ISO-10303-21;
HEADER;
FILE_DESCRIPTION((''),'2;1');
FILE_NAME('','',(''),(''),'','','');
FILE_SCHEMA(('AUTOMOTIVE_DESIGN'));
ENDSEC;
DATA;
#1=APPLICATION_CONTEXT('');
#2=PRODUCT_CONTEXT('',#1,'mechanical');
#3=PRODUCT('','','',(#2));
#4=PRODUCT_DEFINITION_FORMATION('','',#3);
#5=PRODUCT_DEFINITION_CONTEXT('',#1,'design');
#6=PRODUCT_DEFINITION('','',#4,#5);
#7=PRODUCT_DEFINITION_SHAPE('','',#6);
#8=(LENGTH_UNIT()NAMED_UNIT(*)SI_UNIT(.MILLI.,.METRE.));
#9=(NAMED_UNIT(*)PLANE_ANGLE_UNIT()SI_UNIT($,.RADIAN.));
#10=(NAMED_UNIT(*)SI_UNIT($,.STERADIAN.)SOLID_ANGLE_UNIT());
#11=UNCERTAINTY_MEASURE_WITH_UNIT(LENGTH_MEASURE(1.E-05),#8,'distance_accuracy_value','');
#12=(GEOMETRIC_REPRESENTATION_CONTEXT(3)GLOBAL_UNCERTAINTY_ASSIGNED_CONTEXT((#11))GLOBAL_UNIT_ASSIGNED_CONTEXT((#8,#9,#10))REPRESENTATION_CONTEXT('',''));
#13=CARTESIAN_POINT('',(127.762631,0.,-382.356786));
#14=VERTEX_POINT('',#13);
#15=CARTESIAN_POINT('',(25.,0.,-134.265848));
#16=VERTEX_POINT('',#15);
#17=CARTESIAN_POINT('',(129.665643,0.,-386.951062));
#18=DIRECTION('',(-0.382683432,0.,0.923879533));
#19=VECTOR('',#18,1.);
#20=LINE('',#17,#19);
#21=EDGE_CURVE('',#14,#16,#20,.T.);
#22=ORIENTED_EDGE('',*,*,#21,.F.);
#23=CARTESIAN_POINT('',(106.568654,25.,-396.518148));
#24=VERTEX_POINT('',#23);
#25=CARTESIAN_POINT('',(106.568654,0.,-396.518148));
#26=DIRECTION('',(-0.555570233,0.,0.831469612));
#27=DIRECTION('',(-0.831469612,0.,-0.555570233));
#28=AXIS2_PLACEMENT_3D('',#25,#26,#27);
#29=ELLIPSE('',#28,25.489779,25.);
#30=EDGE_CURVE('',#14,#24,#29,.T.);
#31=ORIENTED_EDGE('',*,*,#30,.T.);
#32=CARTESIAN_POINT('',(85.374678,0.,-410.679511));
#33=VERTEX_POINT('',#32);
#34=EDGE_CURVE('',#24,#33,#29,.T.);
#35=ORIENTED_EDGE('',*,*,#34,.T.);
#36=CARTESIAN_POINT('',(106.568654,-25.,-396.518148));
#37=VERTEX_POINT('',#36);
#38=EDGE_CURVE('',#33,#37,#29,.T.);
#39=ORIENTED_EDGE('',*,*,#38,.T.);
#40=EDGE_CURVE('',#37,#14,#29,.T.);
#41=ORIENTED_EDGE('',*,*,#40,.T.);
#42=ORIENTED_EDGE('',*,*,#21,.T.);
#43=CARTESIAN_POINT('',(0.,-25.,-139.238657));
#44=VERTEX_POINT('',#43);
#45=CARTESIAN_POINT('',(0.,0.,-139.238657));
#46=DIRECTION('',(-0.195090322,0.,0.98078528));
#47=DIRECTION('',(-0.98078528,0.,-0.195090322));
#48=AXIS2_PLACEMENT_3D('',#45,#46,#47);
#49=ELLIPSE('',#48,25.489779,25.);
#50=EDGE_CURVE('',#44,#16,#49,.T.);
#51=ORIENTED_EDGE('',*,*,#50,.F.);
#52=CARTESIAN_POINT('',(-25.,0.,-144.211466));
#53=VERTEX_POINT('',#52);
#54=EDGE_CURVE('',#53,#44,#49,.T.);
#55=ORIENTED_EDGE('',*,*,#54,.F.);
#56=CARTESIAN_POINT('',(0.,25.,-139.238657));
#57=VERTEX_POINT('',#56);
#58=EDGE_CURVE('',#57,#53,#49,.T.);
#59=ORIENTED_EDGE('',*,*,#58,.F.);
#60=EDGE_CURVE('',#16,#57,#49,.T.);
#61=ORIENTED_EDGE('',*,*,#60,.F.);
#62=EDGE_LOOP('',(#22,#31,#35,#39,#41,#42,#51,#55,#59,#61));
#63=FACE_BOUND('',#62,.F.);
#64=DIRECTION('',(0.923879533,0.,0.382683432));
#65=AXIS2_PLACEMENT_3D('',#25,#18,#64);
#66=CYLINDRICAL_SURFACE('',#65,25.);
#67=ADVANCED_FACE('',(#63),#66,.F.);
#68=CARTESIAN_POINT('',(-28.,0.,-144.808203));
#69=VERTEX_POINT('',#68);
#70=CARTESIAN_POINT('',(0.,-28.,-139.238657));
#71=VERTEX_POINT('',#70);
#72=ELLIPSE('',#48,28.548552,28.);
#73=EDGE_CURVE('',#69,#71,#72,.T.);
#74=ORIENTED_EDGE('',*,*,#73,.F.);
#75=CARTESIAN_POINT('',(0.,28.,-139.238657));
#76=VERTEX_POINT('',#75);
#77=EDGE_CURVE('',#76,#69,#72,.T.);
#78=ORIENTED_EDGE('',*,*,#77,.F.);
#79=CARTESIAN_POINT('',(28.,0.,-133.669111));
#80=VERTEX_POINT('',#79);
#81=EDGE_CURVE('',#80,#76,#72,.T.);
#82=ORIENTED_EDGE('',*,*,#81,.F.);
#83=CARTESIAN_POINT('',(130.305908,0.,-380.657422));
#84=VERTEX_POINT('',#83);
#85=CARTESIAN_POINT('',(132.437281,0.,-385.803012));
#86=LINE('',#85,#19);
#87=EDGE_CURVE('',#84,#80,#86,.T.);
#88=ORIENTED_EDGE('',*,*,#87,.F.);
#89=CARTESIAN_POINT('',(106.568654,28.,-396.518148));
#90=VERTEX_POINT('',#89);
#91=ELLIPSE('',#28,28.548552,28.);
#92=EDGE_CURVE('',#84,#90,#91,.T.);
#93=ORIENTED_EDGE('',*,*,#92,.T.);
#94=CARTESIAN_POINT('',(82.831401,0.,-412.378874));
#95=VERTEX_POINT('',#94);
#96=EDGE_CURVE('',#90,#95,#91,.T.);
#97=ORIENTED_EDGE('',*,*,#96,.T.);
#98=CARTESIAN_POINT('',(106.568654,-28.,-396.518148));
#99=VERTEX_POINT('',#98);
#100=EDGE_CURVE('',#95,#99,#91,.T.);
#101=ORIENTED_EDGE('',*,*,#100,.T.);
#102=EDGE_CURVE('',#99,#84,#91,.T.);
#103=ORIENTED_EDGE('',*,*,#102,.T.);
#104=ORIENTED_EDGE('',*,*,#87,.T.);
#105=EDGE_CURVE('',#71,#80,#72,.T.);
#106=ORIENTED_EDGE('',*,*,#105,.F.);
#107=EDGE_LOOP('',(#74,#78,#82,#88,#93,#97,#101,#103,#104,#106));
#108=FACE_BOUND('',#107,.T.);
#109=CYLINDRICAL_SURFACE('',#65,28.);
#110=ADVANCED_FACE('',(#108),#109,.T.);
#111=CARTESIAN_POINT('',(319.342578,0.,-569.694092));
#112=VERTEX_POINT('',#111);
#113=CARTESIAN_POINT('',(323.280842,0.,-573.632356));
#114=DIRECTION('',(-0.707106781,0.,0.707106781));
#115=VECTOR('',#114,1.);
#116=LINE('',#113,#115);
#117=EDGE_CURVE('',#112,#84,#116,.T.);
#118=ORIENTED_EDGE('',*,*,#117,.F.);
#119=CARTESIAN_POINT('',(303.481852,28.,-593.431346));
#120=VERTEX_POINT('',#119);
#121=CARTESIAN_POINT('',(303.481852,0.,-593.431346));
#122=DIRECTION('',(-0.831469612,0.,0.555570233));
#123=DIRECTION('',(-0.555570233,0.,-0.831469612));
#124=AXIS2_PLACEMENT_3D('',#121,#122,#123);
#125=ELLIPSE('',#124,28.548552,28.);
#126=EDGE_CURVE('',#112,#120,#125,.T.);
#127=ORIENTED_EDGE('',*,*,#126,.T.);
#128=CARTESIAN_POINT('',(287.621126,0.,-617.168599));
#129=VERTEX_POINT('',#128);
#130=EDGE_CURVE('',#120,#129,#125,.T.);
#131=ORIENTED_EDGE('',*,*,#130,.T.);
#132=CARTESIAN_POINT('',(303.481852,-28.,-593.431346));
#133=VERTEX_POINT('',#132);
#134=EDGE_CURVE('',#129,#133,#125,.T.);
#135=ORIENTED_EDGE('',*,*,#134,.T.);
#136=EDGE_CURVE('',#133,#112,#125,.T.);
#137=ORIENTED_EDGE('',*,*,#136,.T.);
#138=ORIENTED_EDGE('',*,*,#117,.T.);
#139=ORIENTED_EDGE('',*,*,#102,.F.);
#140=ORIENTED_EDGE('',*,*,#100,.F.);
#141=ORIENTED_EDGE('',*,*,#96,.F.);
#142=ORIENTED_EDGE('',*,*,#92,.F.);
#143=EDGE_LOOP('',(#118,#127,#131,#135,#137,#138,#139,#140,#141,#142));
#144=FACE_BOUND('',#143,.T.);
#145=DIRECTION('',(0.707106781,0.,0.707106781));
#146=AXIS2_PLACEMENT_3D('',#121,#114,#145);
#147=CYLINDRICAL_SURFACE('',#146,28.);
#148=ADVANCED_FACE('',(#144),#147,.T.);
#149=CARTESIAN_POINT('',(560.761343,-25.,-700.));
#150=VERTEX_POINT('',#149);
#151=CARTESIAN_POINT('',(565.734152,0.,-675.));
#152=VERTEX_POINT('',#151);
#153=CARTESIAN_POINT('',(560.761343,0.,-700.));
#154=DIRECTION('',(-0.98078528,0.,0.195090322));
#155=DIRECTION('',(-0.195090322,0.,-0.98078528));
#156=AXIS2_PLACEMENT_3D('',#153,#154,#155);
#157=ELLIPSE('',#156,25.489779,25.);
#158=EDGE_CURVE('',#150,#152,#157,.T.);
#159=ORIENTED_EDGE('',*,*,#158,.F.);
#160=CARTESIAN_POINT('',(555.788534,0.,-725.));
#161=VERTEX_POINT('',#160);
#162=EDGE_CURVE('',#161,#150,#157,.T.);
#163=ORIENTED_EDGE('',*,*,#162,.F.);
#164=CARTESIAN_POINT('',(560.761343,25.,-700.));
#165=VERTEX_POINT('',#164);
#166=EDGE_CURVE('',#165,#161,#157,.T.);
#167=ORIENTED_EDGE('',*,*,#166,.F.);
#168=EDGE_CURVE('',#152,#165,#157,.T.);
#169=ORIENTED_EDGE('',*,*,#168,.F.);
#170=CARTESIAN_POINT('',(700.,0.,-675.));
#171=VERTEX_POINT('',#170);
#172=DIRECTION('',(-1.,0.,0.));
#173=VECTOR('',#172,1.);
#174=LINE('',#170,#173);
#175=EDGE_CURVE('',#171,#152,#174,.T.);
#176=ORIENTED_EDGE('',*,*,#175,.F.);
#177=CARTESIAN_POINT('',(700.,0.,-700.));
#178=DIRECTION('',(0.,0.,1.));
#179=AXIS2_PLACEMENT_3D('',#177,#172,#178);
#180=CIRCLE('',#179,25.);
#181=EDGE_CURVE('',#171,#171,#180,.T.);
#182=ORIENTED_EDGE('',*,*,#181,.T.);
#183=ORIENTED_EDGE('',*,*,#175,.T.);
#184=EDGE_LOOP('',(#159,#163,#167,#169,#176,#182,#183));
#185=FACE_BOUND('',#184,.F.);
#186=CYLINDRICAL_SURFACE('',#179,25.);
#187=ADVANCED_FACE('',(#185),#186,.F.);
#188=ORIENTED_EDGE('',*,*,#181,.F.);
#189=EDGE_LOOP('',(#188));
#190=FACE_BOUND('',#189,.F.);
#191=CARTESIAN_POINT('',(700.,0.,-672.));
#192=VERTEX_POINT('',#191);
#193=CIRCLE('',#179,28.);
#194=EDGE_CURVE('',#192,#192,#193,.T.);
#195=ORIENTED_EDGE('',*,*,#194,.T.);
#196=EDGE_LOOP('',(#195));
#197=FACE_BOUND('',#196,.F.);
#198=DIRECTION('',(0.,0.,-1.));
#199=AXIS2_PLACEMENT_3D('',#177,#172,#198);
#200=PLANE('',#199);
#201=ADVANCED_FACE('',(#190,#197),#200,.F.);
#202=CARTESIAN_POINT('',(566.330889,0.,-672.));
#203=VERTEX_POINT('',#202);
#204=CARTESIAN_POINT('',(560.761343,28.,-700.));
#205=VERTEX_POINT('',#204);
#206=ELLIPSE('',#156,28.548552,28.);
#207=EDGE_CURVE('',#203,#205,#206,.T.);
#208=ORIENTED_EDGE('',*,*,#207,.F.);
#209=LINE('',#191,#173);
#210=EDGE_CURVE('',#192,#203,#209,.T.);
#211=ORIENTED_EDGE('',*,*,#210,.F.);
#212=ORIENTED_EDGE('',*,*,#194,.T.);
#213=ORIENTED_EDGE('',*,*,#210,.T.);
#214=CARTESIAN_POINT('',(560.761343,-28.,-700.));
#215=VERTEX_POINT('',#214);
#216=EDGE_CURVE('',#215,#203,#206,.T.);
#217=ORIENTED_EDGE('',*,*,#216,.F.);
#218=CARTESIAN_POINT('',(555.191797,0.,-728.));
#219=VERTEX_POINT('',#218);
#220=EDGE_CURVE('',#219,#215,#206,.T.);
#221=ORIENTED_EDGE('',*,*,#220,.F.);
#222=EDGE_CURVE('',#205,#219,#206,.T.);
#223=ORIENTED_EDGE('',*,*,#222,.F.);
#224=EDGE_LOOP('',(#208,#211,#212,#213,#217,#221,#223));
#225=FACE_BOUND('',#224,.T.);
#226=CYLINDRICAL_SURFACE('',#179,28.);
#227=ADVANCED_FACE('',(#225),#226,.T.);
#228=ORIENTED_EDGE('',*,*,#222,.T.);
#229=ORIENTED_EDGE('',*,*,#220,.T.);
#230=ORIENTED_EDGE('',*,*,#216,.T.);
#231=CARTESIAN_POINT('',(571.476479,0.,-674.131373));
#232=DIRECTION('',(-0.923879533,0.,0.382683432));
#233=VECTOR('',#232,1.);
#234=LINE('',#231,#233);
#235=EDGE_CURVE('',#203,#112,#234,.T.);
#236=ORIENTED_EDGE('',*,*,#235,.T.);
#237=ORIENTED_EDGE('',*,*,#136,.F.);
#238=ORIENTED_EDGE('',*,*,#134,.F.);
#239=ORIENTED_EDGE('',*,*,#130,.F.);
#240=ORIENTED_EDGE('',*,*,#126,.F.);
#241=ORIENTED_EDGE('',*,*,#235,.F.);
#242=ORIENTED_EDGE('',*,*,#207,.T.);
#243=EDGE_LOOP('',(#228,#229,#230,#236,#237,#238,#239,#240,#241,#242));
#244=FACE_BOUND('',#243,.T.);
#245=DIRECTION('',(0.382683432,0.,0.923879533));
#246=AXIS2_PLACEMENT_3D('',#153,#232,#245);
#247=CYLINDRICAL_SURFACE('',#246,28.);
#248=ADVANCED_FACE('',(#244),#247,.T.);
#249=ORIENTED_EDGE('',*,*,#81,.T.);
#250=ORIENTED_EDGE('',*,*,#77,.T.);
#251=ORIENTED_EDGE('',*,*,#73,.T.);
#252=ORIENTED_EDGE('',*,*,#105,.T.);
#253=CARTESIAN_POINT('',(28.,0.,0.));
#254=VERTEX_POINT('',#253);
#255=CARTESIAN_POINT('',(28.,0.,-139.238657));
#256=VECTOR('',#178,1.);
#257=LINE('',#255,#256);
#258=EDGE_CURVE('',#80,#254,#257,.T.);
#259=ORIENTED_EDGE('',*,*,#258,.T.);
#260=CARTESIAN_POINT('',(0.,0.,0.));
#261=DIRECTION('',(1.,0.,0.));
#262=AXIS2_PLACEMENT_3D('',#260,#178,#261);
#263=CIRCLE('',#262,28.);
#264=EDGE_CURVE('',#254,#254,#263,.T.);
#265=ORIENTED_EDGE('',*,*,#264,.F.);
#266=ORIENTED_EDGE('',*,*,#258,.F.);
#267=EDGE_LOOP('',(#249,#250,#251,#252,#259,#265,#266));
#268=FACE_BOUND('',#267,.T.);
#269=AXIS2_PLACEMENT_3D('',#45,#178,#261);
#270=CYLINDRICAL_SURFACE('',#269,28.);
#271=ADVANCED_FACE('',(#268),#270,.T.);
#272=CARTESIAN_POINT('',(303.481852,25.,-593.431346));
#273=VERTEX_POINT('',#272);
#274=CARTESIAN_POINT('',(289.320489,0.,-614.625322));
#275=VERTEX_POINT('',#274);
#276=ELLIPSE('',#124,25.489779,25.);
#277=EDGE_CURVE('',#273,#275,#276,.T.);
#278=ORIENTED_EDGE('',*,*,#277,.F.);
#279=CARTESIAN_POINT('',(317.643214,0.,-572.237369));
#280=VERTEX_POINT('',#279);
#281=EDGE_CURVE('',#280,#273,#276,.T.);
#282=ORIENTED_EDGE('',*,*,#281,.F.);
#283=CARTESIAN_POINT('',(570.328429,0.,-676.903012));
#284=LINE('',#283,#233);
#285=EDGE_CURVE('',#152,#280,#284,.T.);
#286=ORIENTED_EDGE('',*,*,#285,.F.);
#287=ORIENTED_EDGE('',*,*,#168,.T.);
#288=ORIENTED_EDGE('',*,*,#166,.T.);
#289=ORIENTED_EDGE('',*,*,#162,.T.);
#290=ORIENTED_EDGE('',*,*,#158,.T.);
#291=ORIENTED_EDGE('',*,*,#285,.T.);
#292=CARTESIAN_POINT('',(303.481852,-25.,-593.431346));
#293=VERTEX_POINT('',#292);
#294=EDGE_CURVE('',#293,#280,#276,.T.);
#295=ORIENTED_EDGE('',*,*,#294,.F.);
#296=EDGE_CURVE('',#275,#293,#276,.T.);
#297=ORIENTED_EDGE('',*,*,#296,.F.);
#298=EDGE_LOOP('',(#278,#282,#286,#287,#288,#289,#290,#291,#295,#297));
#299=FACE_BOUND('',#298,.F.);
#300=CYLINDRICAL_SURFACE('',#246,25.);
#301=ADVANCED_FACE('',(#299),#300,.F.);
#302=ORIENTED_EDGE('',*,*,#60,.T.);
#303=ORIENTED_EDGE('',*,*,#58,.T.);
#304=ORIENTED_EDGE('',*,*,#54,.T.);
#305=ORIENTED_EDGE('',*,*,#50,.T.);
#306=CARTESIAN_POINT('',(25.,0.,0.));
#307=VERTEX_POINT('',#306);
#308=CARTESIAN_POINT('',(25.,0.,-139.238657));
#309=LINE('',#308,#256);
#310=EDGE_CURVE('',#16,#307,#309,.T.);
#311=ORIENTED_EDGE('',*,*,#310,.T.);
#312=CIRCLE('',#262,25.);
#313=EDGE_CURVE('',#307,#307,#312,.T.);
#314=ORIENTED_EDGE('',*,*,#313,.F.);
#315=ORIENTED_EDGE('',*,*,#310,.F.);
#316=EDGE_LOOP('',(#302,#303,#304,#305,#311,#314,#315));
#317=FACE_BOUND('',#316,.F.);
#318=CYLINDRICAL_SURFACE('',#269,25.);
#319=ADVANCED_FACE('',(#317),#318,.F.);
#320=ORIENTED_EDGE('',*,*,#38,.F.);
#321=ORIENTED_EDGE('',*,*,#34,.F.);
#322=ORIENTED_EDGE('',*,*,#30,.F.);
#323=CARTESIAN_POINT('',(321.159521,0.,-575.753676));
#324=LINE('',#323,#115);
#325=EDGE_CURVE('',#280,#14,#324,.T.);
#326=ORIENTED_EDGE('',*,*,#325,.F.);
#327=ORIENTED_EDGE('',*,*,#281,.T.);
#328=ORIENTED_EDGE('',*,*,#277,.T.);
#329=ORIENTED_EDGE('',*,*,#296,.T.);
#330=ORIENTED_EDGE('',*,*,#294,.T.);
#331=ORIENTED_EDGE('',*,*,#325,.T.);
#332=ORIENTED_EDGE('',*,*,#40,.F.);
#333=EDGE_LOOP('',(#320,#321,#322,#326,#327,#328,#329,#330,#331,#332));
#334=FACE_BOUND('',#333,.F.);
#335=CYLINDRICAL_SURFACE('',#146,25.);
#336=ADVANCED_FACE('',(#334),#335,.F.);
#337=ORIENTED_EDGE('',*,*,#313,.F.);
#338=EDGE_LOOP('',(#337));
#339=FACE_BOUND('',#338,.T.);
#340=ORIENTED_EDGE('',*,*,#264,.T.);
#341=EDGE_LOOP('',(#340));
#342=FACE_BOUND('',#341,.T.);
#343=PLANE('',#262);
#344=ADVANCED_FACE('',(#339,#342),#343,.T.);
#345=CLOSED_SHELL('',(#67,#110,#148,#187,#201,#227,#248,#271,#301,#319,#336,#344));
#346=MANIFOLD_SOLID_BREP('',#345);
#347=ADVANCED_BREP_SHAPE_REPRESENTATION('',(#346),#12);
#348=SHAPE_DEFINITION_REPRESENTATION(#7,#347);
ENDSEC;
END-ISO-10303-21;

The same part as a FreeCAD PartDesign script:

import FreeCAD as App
import Part
import Sketcher

V = App.Vector
Q = App.Units.Quantity

doc = App.newDocument("Part")
body = doc.addObject("PartDesign::Body", "Body")

sketch1 = doc.addObject("Sketcher::SketchObject", "Sketch")
body.addObject(sketch1)
sketch1.AttachmentSupport = (doc.XY_Plane, [""])
sketch1.MapMode = "FlatFace"
sketch1.addGeometry([
    Part.Circle(V(0, 0, 0), V(0, 0, 1), 28),
    Part.Circle(V(0, 0, 0), V(0, 0, 1), 25),
], False)
sketch1.addConstraint([
    Sketcher.Constraint("Coincident", 0, 3, -1, 1),
    Sketcher.Constraint("Coincident", 1, 3, -1, 1),
    Sketcher.Constraint("Diameter", 0, 56.0),
    Sketcher.Constraint("Diameter", 1, 50.0),
])

sketch2 = doc.addObject("Sketcher::SketchObject", "Sketch001")
body.addObject(sketch2)
sketch2.AttachmentSupport = (doc.XZ_Plane, [""])
sketch2.MapMode = "FlatFace"
sketch2.addGeometry([
    Part.LineSegment(V(700, -700, 0), V(560.761343, -700, 0)),
    Part.LineSegment(V(560.761343, -700, 0), V(303.481852, -593.431346, 0)),
    Part.LineSegment(V(303.481852, -593.431346, 0), V(106.568654, -396.518148, 0)),
    Part.LineSegment(V(106.568654, -396.518148, 0), V(0, -139.238657, 0)),
    Part.LineSegment(V(0, -139.238657, 0), V(0, 0, 0)),
], False)
sketch2.addConstraint([
    Sketcher.Constraint("Coincident", 0, 2, 1, 1),
    Sketcher.Constraint("Coincident", 1, 2, 2, 1),
    Sketcher.Constraint("Coincident", 2, 2, 3, 1),
    Sketcher.Constraint("Coincident", 3, 2, 4, 1),
    Sketcher.Constraint("Horizontal", 0),
    Sketcher.Constraint("Vertical", 4),
    Sketcher.Constraint("Coincident", 4, 2, -1, 1),
    Sketcher.Constraint("Equal", 0, 4),
    Sketcher.Constraint("Equal", 1, 2),
    Sketcher.Constraint("Equal", 2, 3),
    Sketcher.Constraint("Angle", 2, Q("135 deg")),
    Sketcher.Constraint("DistanceX", -1, 1, 0, 1, 700.0),
    Sketcher.Constraint("DistanceY", 0, 1, -1, 1, 700.0),
    Sketcher.Constraint("Angle", 1, Q("157.5 deg")),
    Sketcher.Constraint("DistanceX", 0, 2, 0, 1, 139.238657),
])
doc.recompute()

additivepipe = doc.addObject("PartDesign::AdditivePipe", "AdditivePipe")
body.addObject(additivepipe)
additivepipe.Profile = sketch1
additivepipe.Spine = (sketch2, ["Edge1", "Edge2", "Edge3", "Edge4", "Edge5"])
additivepipe.Transition = "Right corner"

doc.recompute()
